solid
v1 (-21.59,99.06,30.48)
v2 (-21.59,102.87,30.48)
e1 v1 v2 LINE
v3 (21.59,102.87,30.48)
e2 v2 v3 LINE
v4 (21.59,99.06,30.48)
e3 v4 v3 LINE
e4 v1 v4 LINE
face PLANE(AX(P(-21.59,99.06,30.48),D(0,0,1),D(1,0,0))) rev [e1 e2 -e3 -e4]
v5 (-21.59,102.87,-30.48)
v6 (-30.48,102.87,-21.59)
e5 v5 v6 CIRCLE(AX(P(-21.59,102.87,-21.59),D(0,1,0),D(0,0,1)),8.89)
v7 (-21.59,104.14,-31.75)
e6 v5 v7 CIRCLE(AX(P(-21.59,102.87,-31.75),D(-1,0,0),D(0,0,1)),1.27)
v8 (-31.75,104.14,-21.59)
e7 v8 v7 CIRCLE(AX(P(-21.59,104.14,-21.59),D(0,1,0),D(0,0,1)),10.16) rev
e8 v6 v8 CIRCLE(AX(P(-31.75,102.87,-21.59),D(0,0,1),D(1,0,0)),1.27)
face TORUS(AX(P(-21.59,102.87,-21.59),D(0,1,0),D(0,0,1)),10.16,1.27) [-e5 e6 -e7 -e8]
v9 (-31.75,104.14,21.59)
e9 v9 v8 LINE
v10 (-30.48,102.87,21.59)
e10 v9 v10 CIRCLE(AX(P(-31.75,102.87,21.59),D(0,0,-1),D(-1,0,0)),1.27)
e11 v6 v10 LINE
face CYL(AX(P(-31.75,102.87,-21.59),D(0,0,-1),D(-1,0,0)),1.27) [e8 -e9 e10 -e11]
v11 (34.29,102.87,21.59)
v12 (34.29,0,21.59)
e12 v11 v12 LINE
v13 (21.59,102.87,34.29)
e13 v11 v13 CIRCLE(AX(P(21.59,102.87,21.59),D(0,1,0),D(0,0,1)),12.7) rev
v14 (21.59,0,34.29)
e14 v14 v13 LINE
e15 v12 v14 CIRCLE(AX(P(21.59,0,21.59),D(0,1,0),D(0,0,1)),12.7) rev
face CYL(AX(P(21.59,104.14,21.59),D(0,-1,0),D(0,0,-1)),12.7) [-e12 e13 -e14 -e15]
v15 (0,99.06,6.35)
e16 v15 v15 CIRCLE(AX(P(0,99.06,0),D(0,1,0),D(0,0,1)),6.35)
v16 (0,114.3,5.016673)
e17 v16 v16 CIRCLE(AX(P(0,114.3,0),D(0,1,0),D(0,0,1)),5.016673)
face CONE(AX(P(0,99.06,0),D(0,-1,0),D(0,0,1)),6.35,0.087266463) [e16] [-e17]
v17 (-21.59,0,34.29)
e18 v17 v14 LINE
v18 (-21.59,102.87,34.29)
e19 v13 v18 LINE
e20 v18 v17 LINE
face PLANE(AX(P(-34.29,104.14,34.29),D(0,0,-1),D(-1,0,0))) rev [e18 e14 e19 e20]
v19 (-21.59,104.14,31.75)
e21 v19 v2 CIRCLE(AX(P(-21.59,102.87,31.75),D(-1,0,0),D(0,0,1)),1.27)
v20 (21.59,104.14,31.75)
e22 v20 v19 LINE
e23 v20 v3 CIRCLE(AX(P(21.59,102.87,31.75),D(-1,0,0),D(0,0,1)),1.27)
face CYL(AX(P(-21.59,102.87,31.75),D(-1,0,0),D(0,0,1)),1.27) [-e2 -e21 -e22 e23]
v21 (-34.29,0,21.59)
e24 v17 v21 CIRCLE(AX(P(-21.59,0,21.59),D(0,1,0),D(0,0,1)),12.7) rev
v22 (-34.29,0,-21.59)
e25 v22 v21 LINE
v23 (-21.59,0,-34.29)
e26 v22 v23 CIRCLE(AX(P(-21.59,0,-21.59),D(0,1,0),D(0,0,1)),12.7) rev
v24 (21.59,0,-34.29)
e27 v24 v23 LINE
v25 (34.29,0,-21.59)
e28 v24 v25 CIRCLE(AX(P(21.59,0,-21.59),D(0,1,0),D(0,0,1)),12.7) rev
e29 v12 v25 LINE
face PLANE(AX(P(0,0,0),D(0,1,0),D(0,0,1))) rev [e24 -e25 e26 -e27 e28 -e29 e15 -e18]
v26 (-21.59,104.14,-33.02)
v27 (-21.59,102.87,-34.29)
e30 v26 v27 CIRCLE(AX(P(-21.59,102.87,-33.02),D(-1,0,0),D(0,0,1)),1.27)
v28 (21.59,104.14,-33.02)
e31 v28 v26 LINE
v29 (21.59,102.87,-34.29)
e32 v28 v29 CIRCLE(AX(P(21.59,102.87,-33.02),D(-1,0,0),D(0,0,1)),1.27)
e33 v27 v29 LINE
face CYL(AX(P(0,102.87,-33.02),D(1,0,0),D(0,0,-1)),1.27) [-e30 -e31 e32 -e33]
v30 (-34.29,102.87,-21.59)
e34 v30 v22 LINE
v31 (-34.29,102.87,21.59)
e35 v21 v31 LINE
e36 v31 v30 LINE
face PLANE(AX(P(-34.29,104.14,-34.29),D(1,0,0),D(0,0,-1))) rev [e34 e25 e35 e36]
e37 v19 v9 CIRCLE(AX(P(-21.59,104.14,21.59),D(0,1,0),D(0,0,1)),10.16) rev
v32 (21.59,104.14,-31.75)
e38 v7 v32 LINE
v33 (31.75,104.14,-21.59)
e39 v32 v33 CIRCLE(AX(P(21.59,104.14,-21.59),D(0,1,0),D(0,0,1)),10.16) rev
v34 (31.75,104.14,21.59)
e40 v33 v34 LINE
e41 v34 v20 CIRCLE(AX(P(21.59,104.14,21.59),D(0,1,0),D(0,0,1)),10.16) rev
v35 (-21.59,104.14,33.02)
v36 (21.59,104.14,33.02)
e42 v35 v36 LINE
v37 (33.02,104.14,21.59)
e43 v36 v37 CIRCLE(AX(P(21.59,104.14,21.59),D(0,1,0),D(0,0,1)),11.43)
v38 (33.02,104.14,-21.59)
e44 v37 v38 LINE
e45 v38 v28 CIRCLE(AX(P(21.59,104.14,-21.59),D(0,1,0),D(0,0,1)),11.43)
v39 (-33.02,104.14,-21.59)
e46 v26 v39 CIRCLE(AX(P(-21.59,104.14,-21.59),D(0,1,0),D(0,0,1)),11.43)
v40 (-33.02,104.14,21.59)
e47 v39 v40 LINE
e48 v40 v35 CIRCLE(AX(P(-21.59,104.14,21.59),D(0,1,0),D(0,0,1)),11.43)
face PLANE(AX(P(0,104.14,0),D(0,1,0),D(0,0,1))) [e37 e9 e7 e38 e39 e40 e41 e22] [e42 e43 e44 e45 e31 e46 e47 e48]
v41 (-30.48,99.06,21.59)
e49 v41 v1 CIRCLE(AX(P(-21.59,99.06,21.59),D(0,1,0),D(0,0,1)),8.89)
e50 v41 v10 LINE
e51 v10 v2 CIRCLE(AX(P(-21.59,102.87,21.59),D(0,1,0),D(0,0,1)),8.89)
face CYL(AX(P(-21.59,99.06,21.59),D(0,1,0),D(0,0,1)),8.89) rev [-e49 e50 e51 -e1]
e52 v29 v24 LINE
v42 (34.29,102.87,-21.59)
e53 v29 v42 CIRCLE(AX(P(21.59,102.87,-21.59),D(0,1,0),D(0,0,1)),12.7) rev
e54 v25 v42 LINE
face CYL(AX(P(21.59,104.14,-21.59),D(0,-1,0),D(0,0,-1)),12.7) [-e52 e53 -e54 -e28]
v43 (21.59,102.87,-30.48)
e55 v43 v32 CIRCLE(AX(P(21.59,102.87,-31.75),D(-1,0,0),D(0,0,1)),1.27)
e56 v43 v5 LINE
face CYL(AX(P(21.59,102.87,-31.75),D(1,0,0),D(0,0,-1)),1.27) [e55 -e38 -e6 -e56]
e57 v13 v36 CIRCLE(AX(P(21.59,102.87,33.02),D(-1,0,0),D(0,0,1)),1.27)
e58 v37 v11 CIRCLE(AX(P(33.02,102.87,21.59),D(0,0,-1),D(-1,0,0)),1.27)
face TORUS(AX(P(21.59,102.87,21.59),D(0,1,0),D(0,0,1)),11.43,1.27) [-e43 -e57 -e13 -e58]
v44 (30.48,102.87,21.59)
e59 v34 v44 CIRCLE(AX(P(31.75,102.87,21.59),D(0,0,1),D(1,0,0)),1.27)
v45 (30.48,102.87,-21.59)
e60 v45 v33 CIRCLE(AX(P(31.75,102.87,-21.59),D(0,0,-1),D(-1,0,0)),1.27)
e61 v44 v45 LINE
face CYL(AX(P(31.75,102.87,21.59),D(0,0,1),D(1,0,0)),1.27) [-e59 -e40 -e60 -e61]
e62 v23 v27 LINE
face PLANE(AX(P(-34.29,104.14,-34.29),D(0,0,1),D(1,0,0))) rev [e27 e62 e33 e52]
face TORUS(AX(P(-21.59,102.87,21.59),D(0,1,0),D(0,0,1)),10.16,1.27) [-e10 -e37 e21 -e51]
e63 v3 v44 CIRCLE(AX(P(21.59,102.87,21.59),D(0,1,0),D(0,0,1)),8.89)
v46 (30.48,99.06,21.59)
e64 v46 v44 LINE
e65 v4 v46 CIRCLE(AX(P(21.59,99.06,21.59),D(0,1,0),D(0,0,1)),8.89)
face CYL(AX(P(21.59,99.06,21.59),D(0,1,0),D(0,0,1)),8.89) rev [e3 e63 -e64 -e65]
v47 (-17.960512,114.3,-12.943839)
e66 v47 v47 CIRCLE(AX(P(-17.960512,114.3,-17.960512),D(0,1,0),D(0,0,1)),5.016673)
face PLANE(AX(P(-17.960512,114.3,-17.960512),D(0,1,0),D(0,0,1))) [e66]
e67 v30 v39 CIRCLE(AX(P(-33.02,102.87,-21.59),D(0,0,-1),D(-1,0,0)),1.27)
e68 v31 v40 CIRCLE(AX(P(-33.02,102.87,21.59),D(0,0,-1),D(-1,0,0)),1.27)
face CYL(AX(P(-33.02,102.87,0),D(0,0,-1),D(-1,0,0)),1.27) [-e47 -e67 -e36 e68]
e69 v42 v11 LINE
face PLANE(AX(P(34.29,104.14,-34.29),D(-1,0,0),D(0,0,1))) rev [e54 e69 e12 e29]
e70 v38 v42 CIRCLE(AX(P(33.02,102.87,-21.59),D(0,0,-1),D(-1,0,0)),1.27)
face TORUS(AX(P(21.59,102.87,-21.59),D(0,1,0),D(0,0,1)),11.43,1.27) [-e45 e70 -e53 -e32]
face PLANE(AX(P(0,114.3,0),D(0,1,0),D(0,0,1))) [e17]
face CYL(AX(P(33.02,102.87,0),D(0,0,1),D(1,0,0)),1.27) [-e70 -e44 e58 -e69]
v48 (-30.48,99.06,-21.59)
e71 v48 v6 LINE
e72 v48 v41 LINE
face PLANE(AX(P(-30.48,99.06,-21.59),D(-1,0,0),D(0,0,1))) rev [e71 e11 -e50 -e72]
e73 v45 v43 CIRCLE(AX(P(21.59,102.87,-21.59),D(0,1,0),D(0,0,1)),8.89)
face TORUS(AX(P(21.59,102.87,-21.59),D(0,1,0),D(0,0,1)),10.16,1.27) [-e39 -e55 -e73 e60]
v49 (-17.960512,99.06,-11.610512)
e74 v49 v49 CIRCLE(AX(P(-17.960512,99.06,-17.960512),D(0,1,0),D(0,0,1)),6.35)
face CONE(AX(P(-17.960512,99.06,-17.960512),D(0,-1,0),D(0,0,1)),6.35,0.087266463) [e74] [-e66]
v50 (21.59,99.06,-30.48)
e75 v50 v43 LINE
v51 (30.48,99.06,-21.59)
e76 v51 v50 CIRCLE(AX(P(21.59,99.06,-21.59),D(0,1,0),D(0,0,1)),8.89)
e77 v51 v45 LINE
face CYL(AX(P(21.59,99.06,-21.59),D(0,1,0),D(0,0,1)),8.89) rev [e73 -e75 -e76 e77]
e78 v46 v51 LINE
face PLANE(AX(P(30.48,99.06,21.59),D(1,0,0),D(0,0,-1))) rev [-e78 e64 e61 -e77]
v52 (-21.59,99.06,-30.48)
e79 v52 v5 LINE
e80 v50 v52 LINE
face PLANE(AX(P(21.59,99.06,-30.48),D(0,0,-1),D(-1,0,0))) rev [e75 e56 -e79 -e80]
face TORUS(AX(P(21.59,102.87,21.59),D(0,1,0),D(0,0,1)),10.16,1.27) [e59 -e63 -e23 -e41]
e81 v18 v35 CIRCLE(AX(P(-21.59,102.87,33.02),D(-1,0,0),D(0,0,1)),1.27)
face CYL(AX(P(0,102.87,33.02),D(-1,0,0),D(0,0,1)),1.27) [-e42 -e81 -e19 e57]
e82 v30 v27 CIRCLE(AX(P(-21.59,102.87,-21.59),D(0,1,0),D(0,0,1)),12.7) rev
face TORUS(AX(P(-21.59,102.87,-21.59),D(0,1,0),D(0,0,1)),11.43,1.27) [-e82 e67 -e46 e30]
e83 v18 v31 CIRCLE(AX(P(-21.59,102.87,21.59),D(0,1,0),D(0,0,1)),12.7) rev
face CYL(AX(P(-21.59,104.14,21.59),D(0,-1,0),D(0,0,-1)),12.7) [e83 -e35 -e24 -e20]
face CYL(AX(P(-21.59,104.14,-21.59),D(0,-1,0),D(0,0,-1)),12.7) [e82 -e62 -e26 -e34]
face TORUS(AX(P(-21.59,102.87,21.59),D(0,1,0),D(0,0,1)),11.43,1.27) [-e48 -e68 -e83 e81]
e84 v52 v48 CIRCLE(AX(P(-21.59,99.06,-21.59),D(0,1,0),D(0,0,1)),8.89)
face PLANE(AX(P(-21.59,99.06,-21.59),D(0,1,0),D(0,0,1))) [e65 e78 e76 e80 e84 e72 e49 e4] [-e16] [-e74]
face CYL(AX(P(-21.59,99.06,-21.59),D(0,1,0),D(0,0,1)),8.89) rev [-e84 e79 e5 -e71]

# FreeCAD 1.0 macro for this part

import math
import FreeCAD as App
import Part
import Sketcher

V = App.Vector
Q = App.Units.Quantity


def edges_at(feature, points):
    """Names of the edges that pass closest to the given points."""
    edges = feature.Shape.Edges
    near = lambda p: min(range(len(edges)), key=lambda i: edges[i].distToShape(Part.Vertex(*p))[0])
    return sorted({f"Edge{near(p) + 1}" for p in points})


def add_polygon(sketch, points):
    """Adds a closed chain of lines whose ends are joined by coincident constraints."""
    first, n = sketch.GeometryCount, len(points)
    for a, b in zip(points, points[1:] + points[:1]):
        sketch.addGeometry(Part.LineSegment(App.Vector(*a, 0), App.Vector(*b, 0)), False)
    for i in range(n):
        sketch.addConstraint(Sketcher.Constraint("Coincident", first + i, 2, first + (i + 1) % n, 1))

doc = App.newDocument("Part")
body = doc.addObject("PartDesign::Body", "Body")

# Sketch on XZ plane
sketch1 = doc.addObject("Sketcher::SketchObject", "Sketch")
body.addObject(sketch1)
sketch1.AttachmentSupport = (doc.XZ_Plane, [""])
sketch1.MapMode = "FlatFace"
add_polygon(sketch1, [(-34, -34), (-34, 34), (34, 34), (34, -34)])  # lines 0-3
sketch1.addConstraint([
    Sketcher.Constraint("Vertical", 0),
    Sketcher.Constraint("Horizontal", 1),
    Sketcher.Constraint("Vertical", 2),
    Sketcher.Constraint("Horizontal", 3),
    Sketcher.Constraint("Symmetric", 0, 2, 2, 2, -1, 1),
    Sketcher.Constraint("Equal", 3, 0),
    Sketcher.Constraint("DistanceX", 1, 1, 1, 2, Q("2.7 in")),
])
pad1 = doc.addObject("PartDesign::Pad", "Pad")
body.addObject(pad1)
pad1.Profile = sketch1
pad1.Length = Q("4.1 in")
pad1.Reversed = True
doc.recompute()

fillet = doc.addObject("PartDesign::Fillet", "Fillet")
body.addObject(fillet)
fillet.Base = (pad1, edges_at(pad1, [
    (34.29, 52.07, 34.29),
    (-34.29, 52.07, 34.29),
    (-34.29, 52.07, -34.29),
    (34.29, 52.07, -34.29),
]))
fillet.Radius = Q("0.5 in")

# Sketch on XZ plane
sketch2 = doc.addObject("Sketcher::SketchObject", "Sketch001")
body.addObject(sketch2)
sketch2.AttachmentSupport = (doc.XZ_Plane, [""])
sketch2.MapMode = "FlatFace"
sketch2.AttachmentOffset = App.Placement(V(0, 0, -4.1 * 25.4), App.Rotation())
sketch2.addGeometry([
    Part.LineSegment(V(-30, -22, 0), V(-30, 22, 0)),  # 0
    Part.ArcOfCircle(Part.Circle(V(-22, 22, 0), V(0, 0, 1), 9), math.radians(90), math.radians(180)),  # 1
    Part.LineSegment(V(-22, 30, 0), V(22, 30, 0)),  # 2
    Part.ArcOfCircle(Part.Circle(V(22, 22, 0), V(0, 0, 1), 9), math.radians(0), math.radians(90)),  # 3
    Part.LineSegment(V(30, 22, 0), V(30, -22, 0)),  # 4
    Part.ArcOfCircle(Part.Circle(V(22, -22, 0), V(0, 0, 1), 9), math.radians(-90), math.radians(0)),  # 5
    Part.LineSegment(V(22, -30, 0), V(-22, -30, 0)),  # 6
    Part.ArcOfCircle(Part.Circle(V(-22, -22, 0), V(0, 0, 1), 9), math.radians(180), math.radians(270)),  # 7
], False)
sketch2.addConstraint([
    Sketcher.Constraint("Tangent", 0, 2, 1, 2),
    Sketcher.Constraint("Tangent", 1, 1, 2, 1),
    Sketcher.Constraint("Tangent", 2, 2, 3, 2),
    Sketcher.Constraint("Tangent", 3, 1, 4, 1),
    Sketcher.Constraint("Tangent", 4, 2, 5, 2),
    Sketcher.Constraint("Tangent", 5, 1, 6, 1),
    Sketcher.Constraint("Tangent", 6, 2, 7, 2),
    Sketcher.Constraint("Tangent", 7, 1, 0, 1),
    Sketcher.Constraint("Vertical", 0),
    Sketcher.Constraint("Horizontal", 2),
    Sketcher.Constraint("Vertical", 4),
    Sketcher.Constraint("Horizontal", 6),
    Sketcher.Constraint("Equal", 1, 3),
    Sketcher.Constraint("Equal", 3, 5),
    Sketcher.Constraint("Equal", 5, 7),
    Sketcher.Constraint("Symmetric", 1, 3, 5, 3, -1, 1),
    Sketcher.Constraint("Equal", 6, 0),
    Sketcher.Constraint("Radius", 1, Q("0.35 in")),
    Sketcher.Constraint("DistanceX", 2, 1, 2, 2, Q("1.7 in")),
])
pocket1 = doc.addObject("PartDesign::Pocket", "Pocket")
body.addObject(pocket1)
pocket1.Profile = sketch2
pocket1.Length = Q("0.2 in")
pocket1.Reversed = True
doc.recompute()

fillet2 = doc.addObject("PartDesign::Fillet", "Fillet001")
body.addObject(fillet2)
fillet2.Base = (pocket1, edges_at(pocket1, [
    (0, 104.14, 34.29),
    (-34.29, 104.14, 0),
    (34.29, 104.14, 0),
    (0, 104.14, -34.29),
    (30.57, 104.14, 30.57),
    (30.57, 104.14, -30.57),
    (-30.57, 104.14, -30.57),
    (-30.57, 104.14, 30.57),
    (-27.876, 104.14, -27.876),
    (-30.48, 104.14, 0),
    (-27.876, 104.14, 27.876),
    (0, 104.14, 30.48),
    (27.876, 104.14, 27.876),
    (30.48, 104.14, 0),
    (27.876, 104.14, -27.876),
    (0, 104.14, -30.48),
]))
fillet2.Radius = Q("0.05 in")

# Sketch on XZ plane
sketch3 = doc.addObject("Sketcher::SketchObject", "Sketch002")
body.addObject(sketch3)
sketch3.AttachmentSupport = (doc.XZ_Plane, [""])
sketch3.MapMode = "FlatFace"
sketch3.AttachmentOffset = App.Placement(V(0, 0, -3.9 * 25.4), App.Rotation())
sketch3.addGeometry([
    Part.Circle(V(0, 0, 0), V(0, 0, 1), 6),
    Part.Circle(V(-18, -18, 0), V(0, 0, 1), 6),
], False)
sketch3.addConstraint([
    Sketcher.Constraint("Coincident", 0, 3, -1, 1),
    Sketcher.Constraint("Equal", 0, 1),
    Sketcher.Constraint("Diameter", 0, Q("0.5 in")),
    Sketcher.Constraint("DistanceX", 1, 3, -1, 1, 17.960512),
    Sketcher.Constraint("DistanceY", 1, 3, -1, 1, 17.960512),
])
pad2 = doc.addObject("PartDesign::Pad", "Pad001")
body.addObject(pad2)
pad2.Profile = sketch3
pad2.Length = Q("0.6 in")
pad2.Reversed = True
pad2.TaperAngle = -5

doc.recompute()
